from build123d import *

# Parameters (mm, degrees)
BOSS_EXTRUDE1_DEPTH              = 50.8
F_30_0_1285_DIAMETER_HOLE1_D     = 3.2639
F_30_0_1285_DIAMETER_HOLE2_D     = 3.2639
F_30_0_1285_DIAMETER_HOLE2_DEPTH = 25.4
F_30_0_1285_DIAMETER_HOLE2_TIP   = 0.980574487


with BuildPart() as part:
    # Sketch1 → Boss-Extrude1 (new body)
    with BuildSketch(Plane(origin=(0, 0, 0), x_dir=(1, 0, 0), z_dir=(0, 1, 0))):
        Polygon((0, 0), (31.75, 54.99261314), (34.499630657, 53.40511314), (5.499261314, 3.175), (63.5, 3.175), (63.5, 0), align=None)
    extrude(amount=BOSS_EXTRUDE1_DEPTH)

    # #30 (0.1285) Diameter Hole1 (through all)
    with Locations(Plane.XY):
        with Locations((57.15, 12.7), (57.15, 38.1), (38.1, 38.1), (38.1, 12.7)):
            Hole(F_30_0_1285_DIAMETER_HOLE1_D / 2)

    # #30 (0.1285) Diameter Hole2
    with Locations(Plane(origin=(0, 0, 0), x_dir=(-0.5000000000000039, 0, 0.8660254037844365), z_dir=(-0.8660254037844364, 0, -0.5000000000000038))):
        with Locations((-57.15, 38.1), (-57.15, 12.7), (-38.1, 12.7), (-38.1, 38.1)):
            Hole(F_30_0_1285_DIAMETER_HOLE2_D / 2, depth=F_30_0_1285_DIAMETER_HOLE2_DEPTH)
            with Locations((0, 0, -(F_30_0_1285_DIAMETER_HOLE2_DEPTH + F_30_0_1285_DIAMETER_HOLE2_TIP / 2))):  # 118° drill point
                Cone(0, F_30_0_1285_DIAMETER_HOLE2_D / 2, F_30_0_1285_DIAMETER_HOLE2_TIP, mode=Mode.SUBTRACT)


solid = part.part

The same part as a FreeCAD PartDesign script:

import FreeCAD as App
import Part
import Sketcher

V = App.Vector
Q = App.Units.Quantity


def add_polygon(sketch, points):
    """Adds a closed chain of lines whose ends are joined by coincident constraints."""
    first, n = sketch.GeometryCount, len(points)
    for a, b in zip(points, points[1:] + points[:1]):
        sketch.addGeometry(Part.LineSegment(App.Vector(*a, 0), App.Vector(*b, 0)), False)
    for i in range(n):
        sketch.addConstraint(Sketcher.Constraint("Coincident", first + i, 2, first + (i + 1) % n, 1))

doc = App.newDocument("Part")
body = doc.addObject("PartDesign::Body", "Body")

# Sketch on XZ plane
sketch1 = body.newObject("Sketcher::SketchObject", "Sketch")
sketch1.AttachmentSupport = (doc.getObject("XZ_Plane"), [""])
sketch1.MapMode = "FlatFace"
add_polygon(sketch1, [(31.8, -55), (0, 0), (63.5, 0), (63.5, -3.2), (5.5, -3.2), (34.5, -53.4)])  # lines 0-5
sketch1.addConstraint(Sketcher.Constraint("Horizontal", 1))
sketch1.addConstraint(Sketcher.Constraint("Vertical", 2))
sketch1.addConstraint(Sketcher.Constraint("Horizontal", 3))
sketch1.addConstraint(Sketcher.Constraint("Coincident", 0, 2, -1, 1))
sketch1.addConstraint(Sketcher.Constraint("Parallel", 0, 4))
sketch1.addConstraint(Sketcher.Constraint("Perpendicular", 4, 5))
sketch1.addConstraint(Sketcher.Constraint("DistanceX", 1, 1, 1, 2, Q("2.5 in")))
sketch1.addConstraint(Sketcher.Constraint("Angle", 0, Q("120 deg")))
sketch1.addConstraint(Sketcher.Constraint("Distance", 0, Q("2.5 in")))
sketch1.addConstraint(Sketcher.Constraint("DistanceY", 2, 2, 2, 1, Q("0.125 in")))
sketch1.addConstraint(Sketcher.Constraint("Distance", 5, Q("0.125 in")))
pad1 = body.newObject("PartDesign::Pad", "Pad")
pad1.Profile = sketch1
pad1.Length = Q("2 in")
pad1.Reversed = True

# Sketch on XY plane
sketch2 = body.newObject("Sketcher::SketchObject", "Sketch001")
sketch2.AttachmentSupport = (doc.getObject("XY_Plane"), [""])
sketch2.MapMode = "FlatFace"
sketch2.addGeometry(Part.Circle(V(57.1, 12.7, 0), V(0, 0, 1), 1.6), False)
sketch2.addGeometry(Part.Circle(V(57.1, 38.1, 0), V(0, 0, 1), 1.6), False)
sketch2.addGeometry(Part.Circle(V(38.1, 38.1, 0), V(0, 0, 1), 1.6), False)
sketch2.addGeometry(Part.Circle(V(38.1, 12.7, 0), V(0, 0, 1), 1.6), False)
sketch2.addConstraint(Sketcher.Constraint("Equal", 0, 1))
sketch2.addConstraint(Sketcher.Constraint("Equal", 1, 2))
sketch2.addConstraint(Sketcher.Constraint("Equal", 2, 3))
sketch2.addConstraint(Sketcher.Constraint("Horizontal", 1, 3, 2, 3))
sketch2.addConstraint(Sketcher.Constraint("Horizontal", 0, 3, 3, 3))
sketch2.addConstraint(Sketcher.Constraint("Vertical", 0, 3, 1, 3))
sketch2.addConstraint(Sketcher.Constraint("Vertical", 2, 3, 3, 3))
sketch2.addConstraint(Sketcher.Constraint("DistanceY", 0, 3, 1, 3, Q("1 in")))
sketch2.addConstraint(Sketcher.Constraint("Diameter", 0, Q("0.1285 in")))
sketch2.addConstraint(Sketcher.Constraint("DistanceY", -1, 1, 0, 3, Q("0.5 in")))
sketch2.addConstraint(Sketcher.Constraint("DistanceX", -1, 1, 2, 3, Q("1.5 in")))
sketch2.addConstraint(Sketcher.Constraint("DistanceX", -1, 1, 0, 3, Q("2.25 in")))
doc.recompute()
hole = body.newObject("PartDesign::Hole", "Hole")
hole.Profile = sketch2
hole.ThreadType = "None"
hole.Diameter = Q("0.1285 in")
hole.DepthType = "ThroughAll"

# Sketch on an angled plane
sketch3 = body.newObject("Sketcher::SketchObject", "Sketch002")
sketch3.Placement = App.Placement(V(0, 0, 0), App.Rotation(V(-0.5, 0, 0.866025404), V(0, 1, 0), V(-0.866025404, 0, -0.5), "ZXY"))
sketch3.addGeometry(Part.Circle(V(-57.2, 38.1, 0), V(0, 0, 1), 1.6), False)
sketch3.addGeometry(Part.Circle(V(-57.2, 12.7, 0), V(0, 0, 1), 1.6), False)
sketch3.addGeometry(Part.Circle(V(-38.1, 12.7, 0), V(0, 0, 1), 1.6), False)
sketch3.addGeometry(Part.Circle(V(-38.1, 38.1, 0), V(0, 0, 1), 1.6), False)
sketch3.addConstraint(Sketcher.Constraint("Equal", 0, 1))
sketch3.addConstraint(Sketcher.Constraint("Equal", 1, 2))
sketch3.addConstraint(Sketcher.Constraint("Equal", 2, 3))
sketch3.addConstraint(Sketcher.Constraint("Horizontal", 1, 3, 2, 3))
sketch3.addConstraint(Sketcher.Constraint("Horizontal", 0, 3, 3, 3))
sketch3.addConstraint(Sketcher.Constraint("Vertical", 0, 3, 1, 3))
sketch3.addConstraint(Sketcher.Constraint("Vertical", 2, 3, 3, 3))
sketch3.addConstraint(Sketcher.Constraint("DistanceY", 1, 3, 0, 3, Q("1 in")))
sketch3.addConstraint(Sketcher.Constraint("Diameter", 0, Q("0.1285 in")))
sketch3.addConstraint(Sketcher.Constraint("DistanceY", -1, 1, 0, 3, Q("1.5 in")))
sketch3.addConstraint(Sketcher.Constraint("DistanceX", 2, 3, -1, 1, Q("1.5 in")))
sketch3.addConstraint(Sketcher.Constraint("DistanceX", 0, 3, -1, 1, Q("2.25 in")))
doc.recompute()
hole2 = body.newObject("PartDesign::Hole", "Hole001")
hole2.Profile = sketch3
hole2.ThreadType = "None"
hole2.Diameter = Q("0.1285 in")
hole2.DepthType = "Dimension"
hole2.Depth = Q("1 in")
hole2.DrillPoint = "Angled"
hole2.DrillPointAngle = 118

doc.recompute()
